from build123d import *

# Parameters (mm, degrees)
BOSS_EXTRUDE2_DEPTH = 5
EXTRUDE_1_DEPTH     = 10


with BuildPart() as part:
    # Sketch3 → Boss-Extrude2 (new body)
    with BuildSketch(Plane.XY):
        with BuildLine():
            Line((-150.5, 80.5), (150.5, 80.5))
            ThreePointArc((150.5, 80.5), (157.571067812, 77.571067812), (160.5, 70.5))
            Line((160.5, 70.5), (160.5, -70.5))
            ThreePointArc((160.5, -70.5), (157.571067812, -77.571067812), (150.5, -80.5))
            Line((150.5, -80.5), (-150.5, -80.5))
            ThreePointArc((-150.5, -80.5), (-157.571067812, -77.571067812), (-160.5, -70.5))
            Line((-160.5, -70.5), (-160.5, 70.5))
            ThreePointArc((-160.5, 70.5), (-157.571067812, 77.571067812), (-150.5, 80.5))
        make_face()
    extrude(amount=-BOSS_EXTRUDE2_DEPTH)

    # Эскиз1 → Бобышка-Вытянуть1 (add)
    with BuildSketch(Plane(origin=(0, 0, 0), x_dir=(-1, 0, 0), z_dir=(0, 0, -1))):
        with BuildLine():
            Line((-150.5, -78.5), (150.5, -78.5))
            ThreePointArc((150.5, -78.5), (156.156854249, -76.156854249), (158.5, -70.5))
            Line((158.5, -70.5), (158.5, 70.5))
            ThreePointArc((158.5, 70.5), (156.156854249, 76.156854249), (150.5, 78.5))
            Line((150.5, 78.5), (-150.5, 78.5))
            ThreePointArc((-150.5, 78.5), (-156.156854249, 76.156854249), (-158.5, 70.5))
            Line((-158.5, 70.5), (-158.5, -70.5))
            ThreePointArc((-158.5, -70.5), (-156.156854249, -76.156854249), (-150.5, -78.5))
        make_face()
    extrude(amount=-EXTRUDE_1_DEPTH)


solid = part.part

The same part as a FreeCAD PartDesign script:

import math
import FreeCAD as App
import Part
import Sketcher

V = App.Vector

doc = App.newDocument("Part")
body = doc.addObject("PartDesign::Body", "Body")

# Sketch on XY plane
sketch1 = body.newObject("Sketcher::SketchObject", "Sketch")
sketch1.AttachmentSupport = (doc.getObject("XY_Plane"), [""])
sketch1.MapMode = "FlatFace"
sketch1.addGeometry(Part.LineSegment(V(150.5, 80.5, 0), V(-150.5, 80.5, 0)), False)
sketch1.addGeometry(Part.ArcOfCircle(Part.Circle(V(-150.5, 70.5, 0), V(0, 0, 1), 10), math.radians(90), math.radians(180)), False)
sketch1.addGeometry(Part.LineSegment(V(-160.5, 70.5, 0), V(-160.5, -70.5, 0)), False)
sketch1.addGeometry(Part.ArcOfCircle(Part.Circle(V(-150.5, -70.5, 0), V(0, 0, 1), 10), math.radians(180), math.radians(270)), False)
sketch1.addGeometry(Part.LineSegment(V(-150.5, -80.5, 0), V(150.5, -80.5, 0)), False)
sketch1.addGeometry(Part.ArcOfCircle(Part.Circle(V(150.5, -70.5, 0), V(0, 0, 1), 10), math.radians(-90), math.radians(0)), False)
sketch1.addGeometry(Part.LineSegment(V(160.5, -70.5, 0), V(160.5, 70.5, 0)), False)
sketch1.addGeometry(Part.ArcOfCircle(Part.Circle(V(150.5, 70.5, 0), V(0, 0, 1), 10), math.radians(0), math.radians(90)), False)
sketch1.addConstraint(Sketcher.Constraint("Tangent", 0, 2, 1, 1))
sketch1.addConstraint(Sketcher.Constraint("Tangent", 1, 2, 2, 1))
sketch1.addConstraint(Sketcher.Constraint("Tangent", 2, 2, 3, 1))
sketch1.addConstraint(Sketcher.Constraint("Tangent", 3, 2, 4, 1))
sketch1.addConstraint(Sketcher.Constraint("Tangent", 4, 2, 5, 1))
sketch1.addConstraint(Sketcher.Constraint("Tangent", 5, 2, 6, 1))
sketch1.addConstraint(Sketcher.Constraint("Tangent", 6, 2, 7, 1))
sketch1.addConstraint(Sketcher.Constraint("Tangent", 7, 2, 0, 1))
sketch1.addConstraint(Sketcher.Constraint("Horizontal", 0))
sketch1.addConstraint(Sketcher.Constraint("Vertical", 2))
sketch1.addConstraint(Sketcher.Constraint("Horizontal", 4))
sketch1.addConstraint(Sketcher.Constraint("Vertical", 6))
sketch1.addConstraint(Sketcher.Constraint("Equal", 1, 3))
sketch1.addConstraint(Sketcher.Constraint("Equal", 3, 5))
sketch1.addConstraint(Sketcher.Constraint("Equal", 5, 7))
sketch1.addConstraint(Sketcher.Constraint("Symmetric", 1, 3, 5, 3, -1, 1))
sketch1.addConstraint(Sketcher.Constraint("Radius", 1, 10.0))
sketch1.addConstraint(Sketcher.Constraint("DistanceX", 0, 2, 0, 1, 301.0))
sketch1.addConstraint(Sketcher.Constraint("DistanceY", 2, 2, 2, 1, 141.0))
pad1 = body.newObject("PartDesign::Pad", "Pad")
pad1.Profile = sketch1
pad1.Length = 5
pad1.Reversed = True

# Sketch on XY plane
sketch2 = body.newObject("Sketcher::SketchObject", "Sketch001")
sketch2.AttachmentSupport = (doc.getObject("XY_Plane"), [""])
sketch2.MapMode = "FlatFace"
sketch2.addGeometry(Part.LineSegment(V(150.5, -78.5, 0), V(-150.5, -78.5, 0)), False)
sketch2.addGeometry(Part.ArcOfCircle(Part.Circle(V(-150.5, -70.5, 0), V(0, 0, 1), 8), math.radians(-180), math.radians(-90)), False)
sketch2.addGeometry(Part.LineSegment(V(-158.5, -70.5, 0), V(-158.5, 70.5, 0)), False)
sketch2.addGeometry(Part.ArcOfCircle(Part.Circle(V(-150.5, 70.5, 0), V(0, 0, 1), 8), math.radians(90), math.radians(180)), False)
sketch2.addGeometry(Part.LineSegment(V(-150.5, 78.5, 0), V(150.5, 78.5, 0)), False)
sketch2.addGeometry(Part.ArcOfCircle(Part.Circle(V(150.5, 70.5, 0), V(0, 0, 1), 8), math.radians(0), math.radians(90)), False)
sketch2.addGeometry(Part.LineSegment(V(158.5, 70.5, 0), V(158.5, -70.5, 0)), False)
sketch2.addGeometry(Part.ArcOfCircle(Part.Circle(V(150.5, -70.5, 0), V(0, 0, 1), 8), math.radians(-90), math.radians(0)), False)
sketch2.addConstraint(Sketcher.Constraint("Tangent", 0, 2, 1, 2))
sketch2.addConstraint(Sketcher.Constraint("Tangent", 1, 1, 2, 1))
sketch2.addConstraint(Sketcher.Constraint("Tangent", 2, 2, 3, 2))
sketch2.addConstraint(Sketcher.Constraint("Tangent", 3, 1, 4, 1))
sketch2.addConstraint(Sketcher.Constraint("Tangent", 4, 2, 5, 2))
sketch2.addConstraint(Sketcher.Constraint("Tangent", 5, 1, 6, 1))
sketch2.addConstraint(Sketcher.Constraint("Tangent", 6, 2, 7, 2))
sketch2.addConstraint(Sketcher.Constraint("Tangent", 7, 1, 0, 1))
sketch2.addConstraint(Sketcher.Constraint("Horizontal", 0))
sketch2.addConstraint(Sketcher.Constraint("Vertical", 2))
sketch2.addConstraint(Sketcher.Constraint("Horizontal", 4))
sketch2.addConstraint(Sketcher.Constraint("Vertical", 6))
sketch2.addConstraint(Sketcher.Constraint("Equal", 1, 3))
sketch2.addConstraint(Sketcher.Constraint("Equal", 3, 5))
sketch2.addConstraint(Sketcher.Constraint("Equal", 5, 7))
sketch2.addConstraint(Sketcher.Constraint("Symmetric", 1, 3, 5, 3, -1, 1))
sketch2.addConstraint(Sketcher.Constraint("Radius", 1, 8.0))
sketch2.addConstraint(Sketcher.Constraint("DistanceX", 0, 2, 0, 1, 301.0))
sketch2.addConstraint(Sketcher.Constraint("DistanceY", 2, 1, 2, 2, 141.0))
pad2 = body.newObject("PartDesign::Pad", "Pad001")
pad2.Profile = sketch2
pad2.Length = 10

doc.recompute()
